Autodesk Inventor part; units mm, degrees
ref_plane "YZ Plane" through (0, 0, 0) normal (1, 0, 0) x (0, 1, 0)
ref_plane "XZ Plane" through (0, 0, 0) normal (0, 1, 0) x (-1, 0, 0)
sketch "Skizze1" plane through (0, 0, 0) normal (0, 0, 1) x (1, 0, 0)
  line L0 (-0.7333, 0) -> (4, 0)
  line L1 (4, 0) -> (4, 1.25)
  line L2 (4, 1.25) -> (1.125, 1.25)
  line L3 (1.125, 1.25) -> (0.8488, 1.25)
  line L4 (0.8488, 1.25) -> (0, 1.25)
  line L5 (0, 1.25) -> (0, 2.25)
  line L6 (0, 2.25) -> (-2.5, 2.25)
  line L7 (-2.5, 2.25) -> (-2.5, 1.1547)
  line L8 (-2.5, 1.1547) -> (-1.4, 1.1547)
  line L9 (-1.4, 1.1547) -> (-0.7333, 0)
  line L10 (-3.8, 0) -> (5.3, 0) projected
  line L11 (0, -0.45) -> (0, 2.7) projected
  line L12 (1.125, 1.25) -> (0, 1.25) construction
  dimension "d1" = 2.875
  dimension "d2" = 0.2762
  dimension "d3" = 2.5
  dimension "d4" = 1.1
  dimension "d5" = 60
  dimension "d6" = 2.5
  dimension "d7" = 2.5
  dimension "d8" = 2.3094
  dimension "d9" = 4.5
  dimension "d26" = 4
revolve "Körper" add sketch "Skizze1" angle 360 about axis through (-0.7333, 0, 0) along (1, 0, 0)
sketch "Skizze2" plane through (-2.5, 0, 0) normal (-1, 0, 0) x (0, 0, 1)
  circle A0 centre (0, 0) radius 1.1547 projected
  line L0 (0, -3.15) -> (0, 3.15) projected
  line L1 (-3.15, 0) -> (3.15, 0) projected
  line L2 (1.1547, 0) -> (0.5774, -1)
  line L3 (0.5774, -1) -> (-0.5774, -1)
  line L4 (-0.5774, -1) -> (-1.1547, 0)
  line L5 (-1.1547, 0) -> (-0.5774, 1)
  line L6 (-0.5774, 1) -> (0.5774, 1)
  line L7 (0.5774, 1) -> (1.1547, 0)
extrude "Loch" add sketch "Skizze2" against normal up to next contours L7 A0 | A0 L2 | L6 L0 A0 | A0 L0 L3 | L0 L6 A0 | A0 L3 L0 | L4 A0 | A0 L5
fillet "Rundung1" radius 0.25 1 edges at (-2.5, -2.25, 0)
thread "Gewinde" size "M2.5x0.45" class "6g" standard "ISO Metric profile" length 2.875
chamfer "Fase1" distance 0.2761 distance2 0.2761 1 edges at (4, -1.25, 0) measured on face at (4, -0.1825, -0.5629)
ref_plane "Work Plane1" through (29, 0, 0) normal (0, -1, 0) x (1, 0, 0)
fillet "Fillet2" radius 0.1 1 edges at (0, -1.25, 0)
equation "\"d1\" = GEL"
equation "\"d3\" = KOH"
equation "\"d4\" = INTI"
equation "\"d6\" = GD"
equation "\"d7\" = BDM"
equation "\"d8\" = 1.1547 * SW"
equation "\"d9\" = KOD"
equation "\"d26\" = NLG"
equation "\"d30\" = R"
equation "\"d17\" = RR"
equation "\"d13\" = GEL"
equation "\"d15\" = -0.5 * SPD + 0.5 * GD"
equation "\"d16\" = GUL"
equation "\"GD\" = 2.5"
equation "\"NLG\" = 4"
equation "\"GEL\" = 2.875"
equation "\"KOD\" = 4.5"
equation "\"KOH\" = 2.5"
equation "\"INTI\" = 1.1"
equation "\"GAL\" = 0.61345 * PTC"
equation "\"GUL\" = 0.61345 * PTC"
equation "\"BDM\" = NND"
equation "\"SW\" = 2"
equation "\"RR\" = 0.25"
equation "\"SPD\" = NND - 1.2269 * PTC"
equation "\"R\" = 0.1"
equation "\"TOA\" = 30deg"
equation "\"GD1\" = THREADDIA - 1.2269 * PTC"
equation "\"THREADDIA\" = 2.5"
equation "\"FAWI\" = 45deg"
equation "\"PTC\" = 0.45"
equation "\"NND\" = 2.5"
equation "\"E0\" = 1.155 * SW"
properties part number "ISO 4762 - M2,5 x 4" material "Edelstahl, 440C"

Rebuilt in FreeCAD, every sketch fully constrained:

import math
import FreeCAD as App
import Part
import Sketcher

V = App.Vector
Q = App.Units.Quantity


def edges_at(feature, points):
    """Names of the edges that pass closest to the given points."""
    edges = feature.Shape.Edges
    near = lambda p: min(range(len(edges)), key=lambda i: edges[i].distToShape(Part.Vertex(*p))[0])
    return sorted({f"Edge{near(p) + 1}" for p in points})


def add_polygon(sketch, points):
    """Adds a closed chain of lines whose ends are joined by coincident constraints."""
    first, n = sketch.GeometryCount, len(points)
    for a, b in zip(points, points[1:] + points[:1]):
        sketch.addGeometry(Part.LineSegment(App.Vector(*a, 0), App.Vector(*b, 0)), False)
    for i in range(n):
        sketch.addConstraint(Sketcher.Constraint("Coincident", first + i, 2, first + (i + 1) % n, 1))

doc = App.newDocument("Part")
params = doc.addObject("Spreadsheet::Sheet", "Params")
for row, (alias, value) in enumerate([
    ("sketch1_width", "4 mm"),
    ("sketch1_width2", "2.5 mm"),
    ("sketch1_width3", "1.1 mm"),
    ("sketch1_height", "1 mm"),
    ("sketch1_height2", "1.25 mm"),
    ("revolution_angle", "360 deg"),
    ("fillet_radius", "0.25 mm"),
    ("chamfer_size", "0.2761 mm"),
    ("chamfer_size2", "0.2761 mm"),
    ("fillet2_radius", "0.1 mm"),
], start=1):
    params.set(f"A{row}", alias)
    params.set(f"B{row}", "=" + value)
    params.setAlias(f"B{row}", alias)

body = doc.addObject("PartDesign::Body", "Body")

sketch1 = doc.addObject("Sketcher::SketchObject", "Sketch")
body.addObject(sketch1)
sketch1.AttachmentSupport = (doc.XY_Plane, [""])
sketch1.MapMode = "FlatFace"
add_polygon(sketch1, [(-1.4, 1.2), (-0.7, 0), (4, 0), (4, 1.2), (0, 1.2), (0, 2.2), (-2.5, 2.2), (-2.5, 1.2)])
sketch1.addConstraint([
    Sketcher.Constraint("Horizontal", 1),
    Sketcher.Constraint("Vertical", 2),
    Sketcher.Constraint("Horizontal", 3),
    Sketcher.Constraint("Vertical", 4),
    Sketcher.Constraint("Horizontal", 5),
    Sketcher.Constraint("Vertical", 6),
    Sketcher.Constraint("Horizontal", 7),
    Sketcher.Constraint("PointOnObject", 0, 2, -1),
    Sketcher.Constraint("PointOnObject", 3, 2, -2),
    Sketcher.Constraint("DistanceX", 3, 2, 3, 1, Q("4 mm")),
    Sketcher.Constraint("DistanceX", 5, 2, 5, 1, Q("2.5 mm")),
    Sketcher.Constraint("DistanceX", 7, 1, 7, 2, Q("1.1 mm")),
    Sketcher.Constraint("DistanceY", 4, 1, 4, 2, Q("1 mm")),
    Sketcher.Constraint("DistanceY", 2, 1, 2, 2, Q("1.25 mm")),
    Sketcher.Constraint("DistanceX", 1, 1, 1, 2, Q("4.7333 mm")),
    Sketcher.Constraint("DistanceY", 6, 2, 6, 1, Q("1.0953 mm")),
])
sketch1.setExpression("Constraints[17]", "Params.sketch1_width")
sketch1.setExpression("Constraints[18]", "Params.sketch1_width2")
sketch1.setExpression("Constraints[19]", "Params.sketch1_width3")
sketch1.setExpression("Constraints[20]", "Params.sketch1_height")
sketch1.setExpression("Constraints[21]", "Params.sketch1_height2")
revolution = doc.addObject("PartDesign::Revolution", "Revolution")
body.addObject(revolution)
revolution.Profile = sketch1
revolution.ReferenceAxis = (sketch1, ["H_Axis"])
revolution.setExpression("Angle", "Params.revolution_angle")

sketch2 = doc.addObject("Sketcher::SketchObject", "Sketch001")
body.addObject(sketch2)
sketch2.AttachmentSupport = (doc.YZ_Plane, [""])
sketch2.MapMode = "FlatFace"
sketch2.AttachmentOffset = App.Placement(V(0, 0, -2.5), App.Rotation())
sketch2.addGeometry([
    Part.LineSegment(V(1, 0.6, 0), V(0, 1.2, 0)),
    Part.ArcOfCircle(Part.Circle(V(0, 0, 0), V(0, 0, 1), 1.2), math.radians(30), math.radians(90)),
    Part.ArcOfCircle(Part.Circle(V(0, 0, 0), V(0, 0, 1), 1.2), math.radians(90), math.radians(150)),
    Part.LineSegment(V(0, 1.2, 0), V(-1, 0.6, 0)),
    Part.ArcOfCircle(Part.Circle(V(0, 0, 0), V(0, 0, 1), 1.2), math.radians(-30), math.radians(30)),
    Part.LineSegment(V(1, 0.6, 0), V(1, -0.6, 0)),
    Part.LineSegment(V(-1, 0.6, 0), V(-1, -0.6, 0)),
    Part.ArcOfCircle(Part.Circle(V(0, 0, 0), V(0, 0, 1), 1.2), math.radians(150), math.radians(210)),
    Part.LineSegment(V(-1, -0.6, 0), V(0, -1.2, 0)),
    Part.ArcOfCircle(Part.Circle(V(0, 0, 0), V(0, 0, 1), 1.2), math.radians(-150), math.radians(-90)),
    Part.ArcOfCircle(Part.Circle(V(0, 0, 0), V(0, 0, 1), 1.2), math.radians(-90), math.radians(-30)),
    Part.LineSegment(V(0, -1.2, 0), V(1, -0.6, 0)),
], False)
sketch2.addConstraint([
    Sketcher.Constraint("Coincident", 0, 1, 1, 1),
    Sketcher.Constraint("Coincident", 1, 2, 0, 2),
    Sketcher.Constraint("Coincident", 2, 1, 3, 1),
    Sketcher.Constraint("Coincident", 3, 2, 2, 2),
    Sketcher.Constraint("Coincident", 4, 1, 5, 2),
    Sketcher.Constraint("Coincident", 5, 1, 4, 2),
    Sketcher.Constraint("Coincident", 6, 1, 7, 1),
    Sketcher.Constraint("Coincident", 7, 2, 6, 2),
    Sketcher.Constraint("Coincident", 8, 1, 9, 1),
    Sketcher.Constraint("Coincident", 9, 2, 8, 2),
    Sketcher.Constraint("Coincident", 10, 1, 11, 1),
    Sketcher.Constraint("Coincident", 11, 2, 10, 2),
    Sketcher.Constraint("Vertical", 5),
    Sketcher.Constraint("Vertical", 6),
    Sketcher.Constraint("Coincident", 1, 3, -1, 1),
    Sketcher.Constraint("Coincident", 2, 3, -1, 1),
    Sketcher.Constraint("Coincident", 4, 3, -1, 1),
    Sketcher.Constraint("Coincident", 7, 3, -1, 1),
    Sketcher.Constraint("Coincident", 9, 3, -1, 1),
    Sketcher.Constraint("Coincident", 10, 3, -1, 1),
    Sketcher.Constraint("Coincident", 2, 1, 1, 2),
    Sketcher.Constraint("Coincident", 5, 1, 0, 1),
    Sketcher.Constraint("Coincident", 6, 1, 3, 2),
    Sketcher.Constraint("Coincident", 8, 1, 7, 2),
    Sketcher.Constraint("Coincident", 10, 1, 9, 2),
    Sketcher.Constraint("PointOnObject", 1, 2, -2),
    Sketcher.Constraint("PointOnObject", 9, 2, -2),
    Sketcher.Constraint("Parallel", 0, 8),
    Sketcher.Constraint("Parallel", 3, 11),
    Sketcher.Constraint("DistanceX", -1, 1, 0, 1, Q("1 mm")),
    Sketcher.Constraint("Radius", 1, Q("1.1547 mm")),
])
pad1 = doc.addObject("PartDesign::Pad", "Pad")
body.addObject(pad1)
pad1.Profile = sketch2
pad1.Type = "UpToFirst"
doc.recompute()

fillet = doc.addObject("PartDesign::Fillet", "Fillet")
body.addObject(fillet)
fillet.Base = (pad1, edges_at(pad1, [(-2.5, -2.25, 0)]))
fillet.setExpression("Radius", "Params.fillet_radius")
doc.recompute()

chamfer = doc.addObject("PartDesign::Chamfer", "Chamfer")
body.addObject(chamfer)
chamfer.Base = (fillet, edges_at(fillet, [(4, -1.25, 0)]))
chamfer.ChamferType = "Two distances"
chamfer.setExpression("Size", "Params.chamfer_size")
chamfer.setExpression("Size2", "Params.chamfer_size2")
doc.recompute()

fillet2 = doc.addObject("PartDesign::Fillet", "Fillet001")
body.addObject(fillet2)
fillet2.Base = (chamfer, edges_at(chamfer, [(0, -1.25, 0)]))
fillet2.setExpression("Radius", "Params.fillet2_radius")

doc.recompute()
